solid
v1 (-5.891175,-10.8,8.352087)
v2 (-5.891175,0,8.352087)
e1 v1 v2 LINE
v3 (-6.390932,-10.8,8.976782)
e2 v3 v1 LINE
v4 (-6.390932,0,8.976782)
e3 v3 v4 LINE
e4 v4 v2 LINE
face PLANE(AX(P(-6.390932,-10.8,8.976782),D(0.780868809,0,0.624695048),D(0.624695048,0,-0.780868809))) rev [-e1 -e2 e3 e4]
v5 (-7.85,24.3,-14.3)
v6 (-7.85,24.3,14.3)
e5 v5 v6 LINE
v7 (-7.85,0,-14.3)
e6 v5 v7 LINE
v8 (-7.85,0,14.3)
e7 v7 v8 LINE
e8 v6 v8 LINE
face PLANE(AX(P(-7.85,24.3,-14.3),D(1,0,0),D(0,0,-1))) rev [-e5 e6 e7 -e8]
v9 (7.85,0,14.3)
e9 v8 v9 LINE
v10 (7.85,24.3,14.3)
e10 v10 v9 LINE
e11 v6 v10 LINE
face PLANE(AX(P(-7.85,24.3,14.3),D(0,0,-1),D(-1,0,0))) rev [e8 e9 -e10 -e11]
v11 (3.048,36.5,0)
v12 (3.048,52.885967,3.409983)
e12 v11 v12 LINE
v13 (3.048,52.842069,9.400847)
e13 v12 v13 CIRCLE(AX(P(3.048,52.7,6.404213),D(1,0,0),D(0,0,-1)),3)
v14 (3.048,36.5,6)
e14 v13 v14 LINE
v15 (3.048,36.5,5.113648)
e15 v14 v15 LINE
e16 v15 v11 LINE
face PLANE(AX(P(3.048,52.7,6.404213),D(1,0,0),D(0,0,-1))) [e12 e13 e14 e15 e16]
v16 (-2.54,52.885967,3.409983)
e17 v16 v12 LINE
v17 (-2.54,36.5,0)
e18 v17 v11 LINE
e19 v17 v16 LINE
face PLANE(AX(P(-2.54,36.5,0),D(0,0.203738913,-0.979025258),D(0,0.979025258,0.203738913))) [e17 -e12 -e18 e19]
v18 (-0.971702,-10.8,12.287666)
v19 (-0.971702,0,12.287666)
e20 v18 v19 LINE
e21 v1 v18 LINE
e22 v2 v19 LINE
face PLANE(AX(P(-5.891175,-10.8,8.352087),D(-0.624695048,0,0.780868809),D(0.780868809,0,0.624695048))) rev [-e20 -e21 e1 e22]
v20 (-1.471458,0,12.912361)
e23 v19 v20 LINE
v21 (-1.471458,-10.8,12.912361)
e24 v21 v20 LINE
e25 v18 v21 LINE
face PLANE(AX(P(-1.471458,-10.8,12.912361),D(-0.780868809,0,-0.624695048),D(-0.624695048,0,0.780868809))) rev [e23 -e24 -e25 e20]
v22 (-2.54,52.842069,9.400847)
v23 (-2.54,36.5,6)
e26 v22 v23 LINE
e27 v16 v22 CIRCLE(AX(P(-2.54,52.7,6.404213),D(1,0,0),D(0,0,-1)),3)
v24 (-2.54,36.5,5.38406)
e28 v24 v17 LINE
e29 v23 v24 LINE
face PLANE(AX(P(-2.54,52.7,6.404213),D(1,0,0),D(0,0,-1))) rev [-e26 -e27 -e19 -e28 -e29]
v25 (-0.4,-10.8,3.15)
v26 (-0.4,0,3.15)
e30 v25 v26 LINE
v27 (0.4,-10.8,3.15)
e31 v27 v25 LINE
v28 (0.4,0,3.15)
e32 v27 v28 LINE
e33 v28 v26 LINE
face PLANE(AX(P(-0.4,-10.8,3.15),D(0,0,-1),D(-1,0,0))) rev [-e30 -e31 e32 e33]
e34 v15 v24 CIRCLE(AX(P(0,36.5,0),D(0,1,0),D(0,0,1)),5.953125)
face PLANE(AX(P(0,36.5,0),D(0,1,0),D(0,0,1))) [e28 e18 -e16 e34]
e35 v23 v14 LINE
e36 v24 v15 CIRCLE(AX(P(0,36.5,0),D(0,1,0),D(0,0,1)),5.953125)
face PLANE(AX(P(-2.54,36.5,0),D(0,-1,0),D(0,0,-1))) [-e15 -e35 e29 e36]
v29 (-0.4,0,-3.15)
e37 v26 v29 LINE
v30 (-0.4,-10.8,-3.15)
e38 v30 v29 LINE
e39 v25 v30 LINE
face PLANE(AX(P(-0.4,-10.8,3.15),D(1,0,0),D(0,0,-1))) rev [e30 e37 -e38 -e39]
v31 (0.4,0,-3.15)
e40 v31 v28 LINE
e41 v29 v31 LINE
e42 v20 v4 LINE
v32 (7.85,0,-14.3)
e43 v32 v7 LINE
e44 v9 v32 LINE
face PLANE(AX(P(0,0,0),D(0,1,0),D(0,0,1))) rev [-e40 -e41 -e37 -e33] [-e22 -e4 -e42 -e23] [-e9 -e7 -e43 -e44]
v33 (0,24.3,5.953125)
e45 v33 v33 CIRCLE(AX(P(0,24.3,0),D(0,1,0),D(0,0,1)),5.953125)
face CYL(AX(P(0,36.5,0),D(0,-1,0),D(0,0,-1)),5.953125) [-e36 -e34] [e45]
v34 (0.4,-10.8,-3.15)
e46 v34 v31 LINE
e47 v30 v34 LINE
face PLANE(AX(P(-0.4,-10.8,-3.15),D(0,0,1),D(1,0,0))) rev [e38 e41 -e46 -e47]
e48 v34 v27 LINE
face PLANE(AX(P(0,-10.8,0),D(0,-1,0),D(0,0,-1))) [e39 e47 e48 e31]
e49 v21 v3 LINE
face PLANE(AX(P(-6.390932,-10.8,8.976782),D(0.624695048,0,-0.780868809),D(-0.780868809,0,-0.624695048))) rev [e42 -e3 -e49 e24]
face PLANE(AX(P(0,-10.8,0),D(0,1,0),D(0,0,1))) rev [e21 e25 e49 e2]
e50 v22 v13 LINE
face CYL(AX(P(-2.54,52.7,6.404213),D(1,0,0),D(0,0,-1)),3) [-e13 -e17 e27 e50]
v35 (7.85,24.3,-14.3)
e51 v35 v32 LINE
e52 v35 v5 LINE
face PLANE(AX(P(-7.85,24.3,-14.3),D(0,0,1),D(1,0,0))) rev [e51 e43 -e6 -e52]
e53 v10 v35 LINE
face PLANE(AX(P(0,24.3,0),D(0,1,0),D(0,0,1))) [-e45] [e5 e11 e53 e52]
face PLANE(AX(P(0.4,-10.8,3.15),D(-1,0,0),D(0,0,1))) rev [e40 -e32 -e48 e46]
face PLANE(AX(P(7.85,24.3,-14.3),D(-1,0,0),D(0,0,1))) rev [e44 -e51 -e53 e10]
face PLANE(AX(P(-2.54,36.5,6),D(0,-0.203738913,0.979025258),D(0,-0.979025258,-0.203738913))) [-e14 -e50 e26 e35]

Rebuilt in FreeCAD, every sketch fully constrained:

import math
import FreeCAD as App
import Part
import Sketcher
from FreeCAD import Vector

doc = App.newDocument("Part")
params = doc.addObject("Spreadsheet::Sheet", "Params")
for row, (alias, value) in enumerate([
    ("sketch1_width", "15.7 mm"),
    ("sketch1_height", "28.6 mm"),
    ("pad1_length", "24.3 mm"),
    ("pad2_length", "12.2 mm"),
    ("sketch3_radius", "3 mm"),
    ("sketch3_height", "6 mm"),
    ("pad3_length", "3.048 mm"),
    ("pad3_length2", "2.54 mm"),
    ("sketch4_width", "0.8 mm"),
    ("sketch4_height", "6.3 mm"),
    ("sketch4_length", "0.8 mm"),
    ("sketch4_length2", "6.3 mm"),
    ("pad4_length", "10.8 mm"),
], start=1):
    params.set(f"A{row}", alias)
    params.set(f"B{row}", "=" + value)
    params.setAlias(f"B{row}", alias)

body = doc.addObject("PartDesign::Body", "Body")

sketch1 = body.newObject("Sketcher::SketchObject", "Sketch")
sketch1.AttachmentSupport = (doc.getObject("XZ_Plane"), [""])
sketch1.MapMode = "FlatFace"
sketch1.addGeometry(Part.LineSegment(Vector(-8, -14, 0), Vector(-8, 14, 0)), False)
sketch1.addGeometry(Part.LineSegment(Vector(-8, 14, 0), Vector(8, 14, 0)), False)
sketch1.addGeometry(Part.LineSegment(Vector(8, 14, 0), Vector(8, -14, 0)), False)
sketch1.addGeometry(Part.LineSegment(Vector(8, -14, 0), Vector(-8, -14, 0)), False)
sketch1.addConstraint(Sketcher.Constraint("Coincident", 0, 2, 1, 1))
sketch1.addConstraint(Sketcher.Constraint("Coincident", 1, 2, 2, 1))
sketch1.addConstraint(Sketcher.Constraint("Coincident", 2, 2, 3, 1))
sketch1.addConstraint(Sketcher.Constraint("Coincident", 3, 2, 0, 1))
sketch1.addConstraint(Sketcher.Constraint("Vertical", 0))
sketch1.addConstraint(Sketcher.Constraint("Horizontal", 1))
sketch1.addConstraint(Sketcher.Constraint("Vertical", 2))
sketch1.addConstraint(Sketcher.Constraint("Horizontal", 3))
sketch1.addConstraint(Sketcher.Constraint("Symmetric", 0, 2, 2, 2, -1, 1))
sketch1.addConstraint(Sketcher.Constraint("DistanceX", 1, 1, 1, 2, 15.7))
sketch1.addConstraint(Sketcher.Constraint("DistanceY", 0, 1, 0, 2, 28.6))
sketch1.setExpression("Constraints[9]", "Params.sketch1_width")
sketch1.setExpression("Constraints[10]", "Params.sketch1_height")
pad1 = body.newObject("PartDesign::Pad", "Pad")
pad1.Profile = sketch1
pad1.setExpression("Length", "Params.pad1_length")
pad1.Reversed = True

sketch2 = body.newObject("Sketcher::SketchObject", "Sketch001")
sketch2.AttachmentSupport = (doc.getObject("XZ_Plane"), [""])
sketch2.MapMode = "FlatFace"
sketch2.AttachmentOffset = App.Placement(Vector(0, 0, -24.3), App.Rotation())
sketch2.addGeometry(Part.Circle(Vector(0, 0, 0), Vector(0, 0, 1), 6), False)
sketch2.addConstraint(Sketcher.Constraint("Coincident", 0, 3, -1, 1))
sketch2.addConstraint(Sketcher.Constraint("Diameter", 0, 11.90625))
pad2 = body.newObject("PartDesign::Pad", "Pad001")
pad2.Profile = sketch2
pad2.setExpression("Length", "Params.pad2_length")
pad2.Reversed = True

sketch3 = body.newObject("Sketcher::SketchObject", "Sketch002")
sketch3.AttachmentSupport = (doc.getObject("YZ_Plane"), [""])
sketch3.MapMode = "FlatFace"
sketch3.addGeometry(Part.LineSegment(Vector(36.5, 6, 0), Vector(36.5, 0, 0)), False)
sketch3.addGeometry(Part.LineSegment(Vector(36.5, 0, 0), Vector(52.9, 3.4, 0)), False)
sketch3.addGeometry(Part.ArcOfCircle(Part.Circle(Vector(52.7, 6.4, 0), Vector(0, 0, 1), 3), math.radians(-86), math.radians(87)), False)
sketch3.addGeometry(Part.LineSegment(Vector(52.8, 9.4, 0), Vector(36.5, 6, 0)), False)
sketch3.addConstraint(Sketcher.Constraint("Coincident", 0, 2, 1, 1))
sketch3.addConstraint(Sketcher.Constraint("Coincident", 1, 2, 2, 1))
sketch3.addConstraint(Sketcher.Constraint("Coincident", 2, 2, 3, 1))
sketch3.addConstraint(Sketcher.Constraint("Coincident", 3, 2, 0, 1))
sketch3.addConstraint(Sketcher.Constraint("Vertical", 0))
sketch3.addConstraint(Sketcher.Constraint("PointOnObject", 0, 2, -1))
sketch3.addConstraint(Sketcher.Constraint("Parallel", 1, 3))
sketch3.addConstraint(Sketcher.Constraint("Radius", 2, 3.0))
sketch3.addConstraint(Sketcher.Constraint("DistanceY", 0, 2, 0, 1, 6.0))
sketch3.addConstraint(Sketcher.Constraint("DistanceX", -1, 1, 2, 3, 52.7))
sketch3.addConstraint(Sketcher.Constraint("DistanceX", -1, 1, 0, 2, 36.5))
sketch3.addConstraint(Sketcher.Constraint("Distance", 1, 16.737021))
sketch3.addConstraint(Sketcher.Constraint("DistanceX", -1, 1, 2, 2, 52.842069))
sketch3.setExpression("Constraints[7]", "Params.sketch3_radius")
sketch3.setExpression("Constraints[8]", "Params.sketch3_height")
pad3 = body.newObject("PartDesign::Pad", "Pad002")
pad3.Profile = sketch3
pad3.Type = "TwoLengths"
pad3.setExpression("Length", "Params.pad3_length")
pad3.setExpression("Length2", "Params.pad3_length2")

sketch4 = body.newObject("Sketcher::SketchObject", "Sketch003")
sketch4.AttachmentSupport = (doc.getObject("XZ_Plane"), [""])
sketch4.MapMode = "FlatFace"
sketch4.addGeometry(Part.LineSegment(Vector(-6.4, 9, 0), Vector(-5.9, 8.4, 0)), False)
sketch4.addGeometry(Part.LineSegment(Vector(-5.9, 8.4, 0), Vector(-1, 12.3, 0)), False)
sketch4.addGeometry(Part.LineSegment(Vector(-1, 12.3, 0), Vector(-1.5, 12.9, 0)), False)
sketch4.addGeometry(Part.LineSegment(Vector(-1.5, 12.9, 0), Vector(-6.4, 9, 0)), False)
sketch4.addGeometry(Part.LineSegment(Vector(-0.4, 3.1, 0), Vector(-0.4, -3.1, 0)), False)
sketch4.addGeometry(Part.LineSegment(Vector(-0.4, -3.1, 0), Vector(0.4, -3.1, 0)), False)
sketch4.addGeometry(Part.LineSegment(Vector(0.4, -3.1, 0), Vector(0.4, 3.1, 0)), False)
sketch4.addGeometry(Part.LineSegment(Vector(0.4, 3.1, 0), Vector(-0.4, 3.1, 0)), False)
sketch4.addConstraint(Sketcher.Constraint("Coincident", 0, 2, 1, 1))
sketch4.addConstraint(Sketcher.Constraint("Coincident", 1, 2, 2, 1))
sketch4.addConstraint(Sketcher.Constraint("Coincident", 2, 2, 3, 1))
sketch4.addConstraint(Sketcher.Constraint("Coincident", 3, 2, 0, 1))
sketch4.addConstraint(Sketcher.Constraint("Coincident", 4, 2, 5, 1))
sketch4.addConstraint(Sketcher.Constraint("Coincident", 5, 2, 6, 1))
sketch4.addConstraint(Sketcher.Constraint("Coincident", 6, 2, 7, 1))
sketch4.addConstraint(Sketcher.Constraint("Coincident", 7, 2, 4, 1))
sketch4.addConstraint(Sketcher.Constraint("Vertical", 4))
sketch4.addConstraint(Sketcher.Constraint("Horizontal", 5))
sketch4.addConstraint(Sketcher.Constraint("Vertical", 6))
sketch4.addConstraint(Sketcher.Constraint("Horizontal", 7))
sketch4.addConstraint(Sketcher.Constraint("Symmetric", 4, 2, 6, 2, -1, 1))
sketch4.addConstraint(Sketcher.Constraint("Perpendicular", 0, 1))
sketch4.addConstraint(Sketcher.Constraint("Perpendicular", 1, 2))
sketch4.addConstraint(Sketcher.Constraint("Perpendicular", 2, 3))
sketch4.addConstraint(Sketcher.Constraint("DistanceX", 5, 1, 5, 2, 0.8))
sketch4.addConstraint(Sketcher.Constraint("DistanceY", 4, 2, 4, 1, 6.3))
sketch4.addConstraint(Sketcher.Constraint("Distance", 0, 0.8))
sketch4.addConstraint(Sketcher.Constraint("Distance", 1, 6.3))
sketch4.addConstraint(Sketcher.Constraint("DistanceX", 1, 2, -1, 1, 0.971702))
sketch4.addConstraint(Sketcher.Constraint("DistanceX", 2, 2, -1, 1, 1.471458))
sketch4.addConstraint(Sketcher.Constraint("DistanceY", -1, 1, 2, 2, 12.912361))
sketch4.setExpression("Constraints[16]", "Params.sketch4_width")
sketch4.setExpression("Constraints[17]", "Params.sketch4_height")
sketch4.setExpression("Constraints[18]", "Params.sketch4_length")
sketch4.setExpression("Constraints[19]", "Params.sketch4_length2")
pad4 = body.newObject("PartDesign::Pad", "Pad003")
pad4.Profile = sketch4
pad4.setExpression("Length", "Params.pad4_length")

doc.recompute()
